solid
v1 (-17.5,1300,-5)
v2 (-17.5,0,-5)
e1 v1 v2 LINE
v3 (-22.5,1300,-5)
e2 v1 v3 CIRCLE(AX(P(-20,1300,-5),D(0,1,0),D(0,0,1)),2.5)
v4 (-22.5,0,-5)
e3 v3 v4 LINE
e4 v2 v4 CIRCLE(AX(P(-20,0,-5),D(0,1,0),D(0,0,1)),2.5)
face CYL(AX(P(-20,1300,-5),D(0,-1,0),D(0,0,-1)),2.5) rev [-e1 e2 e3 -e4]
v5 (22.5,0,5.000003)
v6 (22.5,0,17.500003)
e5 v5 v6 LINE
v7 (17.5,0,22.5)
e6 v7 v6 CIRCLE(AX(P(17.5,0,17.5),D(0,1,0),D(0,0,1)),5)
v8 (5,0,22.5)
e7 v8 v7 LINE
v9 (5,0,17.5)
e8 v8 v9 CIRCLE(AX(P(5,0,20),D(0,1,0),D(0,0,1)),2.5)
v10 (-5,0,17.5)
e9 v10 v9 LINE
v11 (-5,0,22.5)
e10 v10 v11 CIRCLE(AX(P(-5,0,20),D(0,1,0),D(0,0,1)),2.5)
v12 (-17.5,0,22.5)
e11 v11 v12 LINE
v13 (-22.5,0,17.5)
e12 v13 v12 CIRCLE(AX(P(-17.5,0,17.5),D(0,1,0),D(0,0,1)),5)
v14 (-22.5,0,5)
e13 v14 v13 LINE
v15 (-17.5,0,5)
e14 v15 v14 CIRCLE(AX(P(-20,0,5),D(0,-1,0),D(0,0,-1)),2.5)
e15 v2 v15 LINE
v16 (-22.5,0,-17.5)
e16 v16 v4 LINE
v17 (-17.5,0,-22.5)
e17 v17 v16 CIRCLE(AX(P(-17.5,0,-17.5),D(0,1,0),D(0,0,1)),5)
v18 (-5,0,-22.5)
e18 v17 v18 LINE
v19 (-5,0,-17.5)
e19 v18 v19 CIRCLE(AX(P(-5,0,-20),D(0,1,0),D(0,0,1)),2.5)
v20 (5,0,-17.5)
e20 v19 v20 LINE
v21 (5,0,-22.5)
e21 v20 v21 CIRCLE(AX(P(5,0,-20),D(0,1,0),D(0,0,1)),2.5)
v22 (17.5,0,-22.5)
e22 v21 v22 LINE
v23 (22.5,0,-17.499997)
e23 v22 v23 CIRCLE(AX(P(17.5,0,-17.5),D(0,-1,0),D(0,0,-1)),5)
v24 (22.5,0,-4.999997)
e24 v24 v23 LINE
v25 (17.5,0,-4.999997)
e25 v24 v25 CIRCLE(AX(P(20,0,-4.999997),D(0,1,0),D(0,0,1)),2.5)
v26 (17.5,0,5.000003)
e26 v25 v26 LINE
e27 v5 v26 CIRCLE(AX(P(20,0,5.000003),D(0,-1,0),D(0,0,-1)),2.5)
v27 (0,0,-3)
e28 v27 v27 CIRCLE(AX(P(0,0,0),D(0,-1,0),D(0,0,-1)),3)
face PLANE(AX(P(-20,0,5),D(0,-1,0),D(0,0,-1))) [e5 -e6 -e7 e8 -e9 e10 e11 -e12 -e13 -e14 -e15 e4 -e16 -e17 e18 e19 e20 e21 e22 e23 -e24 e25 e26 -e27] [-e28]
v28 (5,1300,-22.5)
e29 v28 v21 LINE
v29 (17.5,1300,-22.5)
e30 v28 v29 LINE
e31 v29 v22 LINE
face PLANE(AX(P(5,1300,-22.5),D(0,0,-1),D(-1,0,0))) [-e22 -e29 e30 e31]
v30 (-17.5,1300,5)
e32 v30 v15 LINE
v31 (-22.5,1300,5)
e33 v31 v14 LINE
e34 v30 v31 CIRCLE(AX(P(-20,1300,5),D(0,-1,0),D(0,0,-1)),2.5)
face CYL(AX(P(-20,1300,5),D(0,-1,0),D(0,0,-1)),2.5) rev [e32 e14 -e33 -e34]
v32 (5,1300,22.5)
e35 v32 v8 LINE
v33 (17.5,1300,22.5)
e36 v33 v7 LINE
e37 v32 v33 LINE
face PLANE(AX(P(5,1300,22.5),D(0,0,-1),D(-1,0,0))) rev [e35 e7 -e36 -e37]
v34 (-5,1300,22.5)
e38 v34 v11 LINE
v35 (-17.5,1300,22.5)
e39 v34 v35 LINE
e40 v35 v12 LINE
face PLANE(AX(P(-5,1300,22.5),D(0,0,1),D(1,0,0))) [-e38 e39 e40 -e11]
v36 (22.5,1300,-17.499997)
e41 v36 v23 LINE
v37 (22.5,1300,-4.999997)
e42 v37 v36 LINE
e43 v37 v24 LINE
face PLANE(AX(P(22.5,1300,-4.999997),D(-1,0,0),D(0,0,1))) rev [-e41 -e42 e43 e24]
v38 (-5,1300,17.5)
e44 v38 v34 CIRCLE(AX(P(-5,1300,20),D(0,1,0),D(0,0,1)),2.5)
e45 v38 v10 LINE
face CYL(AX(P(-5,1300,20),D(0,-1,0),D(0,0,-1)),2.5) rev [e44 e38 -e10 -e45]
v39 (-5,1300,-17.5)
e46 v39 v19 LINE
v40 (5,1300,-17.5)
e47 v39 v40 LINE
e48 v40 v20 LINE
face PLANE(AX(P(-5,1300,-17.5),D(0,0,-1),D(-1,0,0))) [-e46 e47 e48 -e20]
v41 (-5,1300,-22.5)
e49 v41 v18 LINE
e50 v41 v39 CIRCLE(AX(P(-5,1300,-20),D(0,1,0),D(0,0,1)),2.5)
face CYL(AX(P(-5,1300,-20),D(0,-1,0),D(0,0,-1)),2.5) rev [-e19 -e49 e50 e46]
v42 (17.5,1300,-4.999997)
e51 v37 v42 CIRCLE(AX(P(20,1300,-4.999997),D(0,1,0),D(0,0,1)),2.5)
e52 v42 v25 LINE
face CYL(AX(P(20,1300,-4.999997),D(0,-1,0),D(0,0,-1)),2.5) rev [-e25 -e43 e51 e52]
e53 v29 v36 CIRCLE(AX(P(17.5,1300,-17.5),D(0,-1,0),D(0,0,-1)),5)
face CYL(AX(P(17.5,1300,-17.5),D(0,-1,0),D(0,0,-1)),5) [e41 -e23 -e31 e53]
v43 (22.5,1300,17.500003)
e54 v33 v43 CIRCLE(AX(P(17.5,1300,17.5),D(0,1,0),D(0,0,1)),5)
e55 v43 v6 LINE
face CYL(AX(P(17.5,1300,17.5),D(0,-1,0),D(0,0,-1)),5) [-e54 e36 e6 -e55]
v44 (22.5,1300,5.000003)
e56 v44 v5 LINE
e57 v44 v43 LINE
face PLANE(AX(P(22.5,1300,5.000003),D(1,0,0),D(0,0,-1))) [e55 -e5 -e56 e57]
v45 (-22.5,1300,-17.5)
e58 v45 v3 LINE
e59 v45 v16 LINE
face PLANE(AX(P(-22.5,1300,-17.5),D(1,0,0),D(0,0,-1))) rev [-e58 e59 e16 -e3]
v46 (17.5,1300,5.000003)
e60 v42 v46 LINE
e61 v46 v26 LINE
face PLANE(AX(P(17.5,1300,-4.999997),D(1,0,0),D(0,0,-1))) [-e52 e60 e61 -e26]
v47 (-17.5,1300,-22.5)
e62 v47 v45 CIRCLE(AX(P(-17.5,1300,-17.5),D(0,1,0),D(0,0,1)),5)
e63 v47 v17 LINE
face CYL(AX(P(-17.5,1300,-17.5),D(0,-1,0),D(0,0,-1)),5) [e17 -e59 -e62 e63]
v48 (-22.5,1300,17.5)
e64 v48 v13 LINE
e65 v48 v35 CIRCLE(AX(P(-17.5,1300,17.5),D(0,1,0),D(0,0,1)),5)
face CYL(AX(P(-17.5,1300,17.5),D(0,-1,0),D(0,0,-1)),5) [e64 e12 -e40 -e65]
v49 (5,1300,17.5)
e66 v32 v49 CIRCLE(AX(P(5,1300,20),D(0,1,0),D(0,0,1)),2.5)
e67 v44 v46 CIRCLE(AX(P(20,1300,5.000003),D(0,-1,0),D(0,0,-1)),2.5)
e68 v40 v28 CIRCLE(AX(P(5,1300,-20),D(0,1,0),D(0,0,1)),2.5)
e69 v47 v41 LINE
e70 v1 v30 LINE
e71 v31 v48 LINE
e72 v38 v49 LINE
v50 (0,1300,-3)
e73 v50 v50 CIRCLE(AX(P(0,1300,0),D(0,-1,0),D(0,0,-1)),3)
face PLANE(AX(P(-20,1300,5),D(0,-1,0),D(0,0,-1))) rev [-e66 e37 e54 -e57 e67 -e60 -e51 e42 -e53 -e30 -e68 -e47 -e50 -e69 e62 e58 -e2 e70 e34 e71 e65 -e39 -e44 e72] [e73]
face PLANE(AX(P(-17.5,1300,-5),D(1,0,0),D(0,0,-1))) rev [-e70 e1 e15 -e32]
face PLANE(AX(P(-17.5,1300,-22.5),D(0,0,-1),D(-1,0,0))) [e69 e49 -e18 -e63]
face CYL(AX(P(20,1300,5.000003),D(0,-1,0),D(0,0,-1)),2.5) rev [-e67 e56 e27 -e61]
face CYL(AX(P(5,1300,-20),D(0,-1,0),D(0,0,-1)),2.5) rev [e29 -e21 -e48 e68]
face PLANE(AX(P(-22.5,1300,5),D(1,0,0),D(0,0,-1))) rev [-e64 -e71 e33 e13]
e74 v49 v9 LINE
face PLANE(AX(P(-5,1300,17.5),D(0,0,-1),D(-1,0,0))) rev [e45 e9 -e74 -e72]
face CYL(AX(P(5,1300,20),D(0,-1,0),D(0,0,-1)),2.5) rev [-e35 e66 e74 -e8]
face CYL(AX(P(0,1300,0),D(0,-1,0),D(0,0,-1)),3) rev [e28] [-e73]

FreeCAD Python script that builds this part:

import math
import FreeCAD as App
import Part
import Sketcher
from FreeCAD import Vector

doc = App.newDocument("Part")
body = doc.addObject("PartDesign::Body", "Body")

sketch1 = doc.addObject("Sketcher::SketchObject", "Sketch")
body.addObject(sketch1)
sketch1.AttachmentSupport = (doc.XZ_Plane, [""])
sketch1.MapMode = "FlatFace"
sketch1.addGeometry([
    Part.LineSegment(Vector(-5, -22.5, 0), Vector(-17.5, -22.5, 0)),
    Part.ArcOfCircle(Part.Circle(Vector(-17.5, -17.5, 0), Vector(0, 0, 1), 5), math.radians(180), math.radians(270)),
    Part.LineSegment(Vector(-22.5, -17.5, 0), Vector(-22.5, -5, 0)),
    Part.ArcOfCircle(Part.Circle(Vector(-20, -5, 0), Vector(0, 0, 1), 2.5), math.radians(180), math.radians(360)),
    Part.LineSegment(Vector(-17.5, -5, 0), Vector(-17.5, 5, 0)),
    Part.ArcOfCircle(Part.Circle(Vector(-20, 5, 0), Vector(0, 0, 1), 2.5), math.radians(0), math.radians(180)),
    Part.LineSegment(Vector(-22.5, 5, 0), Vector(-22.5, 17.5, 0)),
    Part.ArcOfCircle(Part.Circle(Vector(-17.5, 17.5, 0), Vector(0, 0, 1), 5), math.radians(90), math.radians(180)),
    Part.LineSegment(Vector(-17.5, 22.5, 0), Vector(-5, 22.5, 0)),
    Part.ArcOfCircle(Part.Circle(Vector(-5, 20, 0), Vector(0, 0, 1), 2.5), math.radians(90), math.radians(270)),
    Part.LineSegment(Vector(-5, 17.5, 0), Vector(5, 17.5, 0)),
    Part.ArcOfCircle(Part.Circle(Vector(5, 20, 0), Vector(0, 0, 1), 2.5), math.radians(-90), math.radians(90)),
    Part.LineSegment(Vector(5, 22.5, 0), Vector(17.5, 22.5, 0)),
    Part.ArcOfCircle(Part.Circle(Vector(17.5, 17.5, 0), Vector(0, 0, 1), 5), math.radians(0), math.radians(90)),
    Part.LineSegment(Vector(22.5, 17.5, 0), Vector(22.5, 5, 0)),
    Part.ArcOfCircle(Part.Circle(Vector(20, 5, 0), Vector(0, 0, 1), 2.5), math.radians(0), math.radians(180)),
    Part.LineSegment(Vector(17.5, 5, 0), Vector(17.5, -5, 0)),
    Part.ArcOfCircle(Part.Circle(Vector(20, -5, 0), Vector(0, 0, 1), 2.5), math.radians(180), math.radians(360)),
    Part.LineSegment(Vector(22.5, -5, 0), Vector(22.5, -17.5, 0)),
    Part.ArcOfCircle(Part.Circle(Vector(17.5, -17.5, 0), Vector(0, 0, 1), 5), math.radians(-90), math.radians(0)),
    Part.LineSegment(Vector(17.5, -22.5, 0), Vector(5, -22.5, 0)),
    Part.ArcOfCircle(Part.Circle(Vector(5, -20, 0), Vector(0, 0, 1), 2.5), math.radians(-90), math.radians(90)),
    Part.LineSegment(Vector(5, -17.5, 0), Vector(-5, -17.5, 0)),
    Part.ArcOfCircle(Part.Circle(Vector(-5, -20, 0), Vector(0, 0, 1), 2.5), math.radians(90), math.radians(270)),
], False)
sketch1.addConstraint([
    Sketcher.Constraint("Tangent", 0, 2, 1, 2),
    Sketcher.Constraint("Tangent", 1, 1, 2, 1),
    Sketcher.Constraint("Tangent", 2, 2, 3, 1),
    Sketcher.Constraint("Tangent", 3, 2, 4, 1),
    Sketcher.Constraint("Tangent", 4, 2, 5, 1),
    Sketcher.Constraint("Tangent", 5, 2, 6, 1),
    Sketcher.Constraint("Tangent", 6, 2, 7, 2),
    Sketcher.Constraint("Tangent", 7, 1, 8, 1),
    Sketcher.Constraint("Tangent", 8, 2, 9, 1),
    Sketcher.Constraint("Tangent", 9, 2, 10, 1),
    Sketcher.Constraint("Tangent", 10, 2, 11, 1),
    Sketcher.Constraint("Tangent", 11, 2, 12, 1),
    Sketcher.Constraint("Tangent", 12, 2, 13, 2),
    Sketcher.Constraint("Tangent", 13, 1, 14, 1),
    Sketcher.Constraint("Tangent", 14, 2, 15, 1),
    Sketcher.Constraint("Tangent", 15, 2, 16, 1),
    Sketcher.Constraint("Tangent", 16, 2, 17, 1),
    Sketcher.Constraint("Tangent", 17, 2, 18, 1),
    Sketcher.Constraint("Tangent", 18, 2, 19, 2),
    Sketcher.Constraint("Tangent", 19, 1, 20, 1),
    Sketcher.Constraint("Tangent", 20, 2, 21, 1),
    Sketcher.Constraint("Tangent", 21, 2, 22, 1),
    Sketcher.Constraint("Tangent", 22, 2, 23, 1),
    Sketcher.Constraint("Tangent", 23, 2, 0, 1),
    Sketcher.Constraint("Horizontal", 0),
    Sketcher.Constraint("Vertical", 2),
    Sketcher.Constraint("Vertical", 4),
    Sketcher.Constraint("Vertical", 6),
    Sketcher.Constraint("Horizontal", 8),
    Sketcher.Constraint("Horizontal", 10),
    Sketcher.Constraint("Horizontal", 12),
    Sketcher.Constraint("Vertical", 14),
    Sketcher.Constraint("Vertical", 16),
    Sketcher.Constraint("Vertical", 18),
    Sketcher.Constraint("Horizontal", 20),
    Sketcher.Constraint("Horizontal", 22),
    Sketcher.Constraint("Equal", 3, 5),
    Sketcher.Constraint("Equal", 1, 7),
    Sketcher.Constraint("Equal", 5, 9),
    Sketcher.Constraint("Equal", 9, 11),
    Sketcher.Constraint("Equal", 7, 13),
    Sketcher.Constraint("Equal", 11, 15),
    Sketcher.Constraint("Equal", 15, 17),
    Sketcher.Constraint("Equal", 13, 19),
    Sketcher.Constraint("Equal", 17, 21),
    Sketcher.Constraint("Equal", 21, 23),
    Sketcher.Constraint("Symmetric", 1, 3, 13, 3, -1, 1),
    Sketcher.Constraint("Horizontal", 6, 2, 9, 2),
    Sketcher.Constraint("Vertical", 11, 3, 21, 3),
    Sketcher.Constraint("Vertical", 9, 3, 23, 3),
    Sketcher.Constraint("Equal", 8, 12),
    Sketcher.Constraint("Equal", 20, 2),
    Sketcher.Constraint("Equal", 22, 4),
    Sketcher.Constraint("Equal", 2, 6),
    Sketcher.Constraint("Equal", 6, 14),
    Sketcher.Constraint("Equal", 4, 16),
    Sketcher.Constraint("Radius", 1, 5.0),
    Sketcher.Constraint("DistanceX", 10, 1, 10, 2, 10.0),
    Sketcher.Constraint("DistanceX", 0, 2, 0, 1, 12.5),
])
pad1 = doc.addObject("PartDesign::Pad", "Pad")
body.addObject(pad1)
pad1.Profile = sketch1
pad1.Length = 1300
pad1.Reversed = True

sketch2 = doc.addObject("Sketcher::SketchObject", "Sketch001")
body.addObject(sketch2)
sketch2.AttachmentSupport = (doc.XZ_Plane, [""])
sketch2.MapMode = "FlatFace"
sketch2.addGeometry(Part.Circle(Vector(0, 0, 0), Vector(0, 0, 1), 3), False)
sketch2.addConstraint([
    Sketcher.Constraint("Coincident", 0, 3, -1, 1),
    Sketcher.Constraint("Diameter", 0, 6.0),
])
pocket1 = doc.addObject("PartDesign::Pocket", "Pocket")
body.addObject(pocket1)
pocket1.Profile = sketch2
pocket1.Type = "ThroughAll"

doc.recompute()
